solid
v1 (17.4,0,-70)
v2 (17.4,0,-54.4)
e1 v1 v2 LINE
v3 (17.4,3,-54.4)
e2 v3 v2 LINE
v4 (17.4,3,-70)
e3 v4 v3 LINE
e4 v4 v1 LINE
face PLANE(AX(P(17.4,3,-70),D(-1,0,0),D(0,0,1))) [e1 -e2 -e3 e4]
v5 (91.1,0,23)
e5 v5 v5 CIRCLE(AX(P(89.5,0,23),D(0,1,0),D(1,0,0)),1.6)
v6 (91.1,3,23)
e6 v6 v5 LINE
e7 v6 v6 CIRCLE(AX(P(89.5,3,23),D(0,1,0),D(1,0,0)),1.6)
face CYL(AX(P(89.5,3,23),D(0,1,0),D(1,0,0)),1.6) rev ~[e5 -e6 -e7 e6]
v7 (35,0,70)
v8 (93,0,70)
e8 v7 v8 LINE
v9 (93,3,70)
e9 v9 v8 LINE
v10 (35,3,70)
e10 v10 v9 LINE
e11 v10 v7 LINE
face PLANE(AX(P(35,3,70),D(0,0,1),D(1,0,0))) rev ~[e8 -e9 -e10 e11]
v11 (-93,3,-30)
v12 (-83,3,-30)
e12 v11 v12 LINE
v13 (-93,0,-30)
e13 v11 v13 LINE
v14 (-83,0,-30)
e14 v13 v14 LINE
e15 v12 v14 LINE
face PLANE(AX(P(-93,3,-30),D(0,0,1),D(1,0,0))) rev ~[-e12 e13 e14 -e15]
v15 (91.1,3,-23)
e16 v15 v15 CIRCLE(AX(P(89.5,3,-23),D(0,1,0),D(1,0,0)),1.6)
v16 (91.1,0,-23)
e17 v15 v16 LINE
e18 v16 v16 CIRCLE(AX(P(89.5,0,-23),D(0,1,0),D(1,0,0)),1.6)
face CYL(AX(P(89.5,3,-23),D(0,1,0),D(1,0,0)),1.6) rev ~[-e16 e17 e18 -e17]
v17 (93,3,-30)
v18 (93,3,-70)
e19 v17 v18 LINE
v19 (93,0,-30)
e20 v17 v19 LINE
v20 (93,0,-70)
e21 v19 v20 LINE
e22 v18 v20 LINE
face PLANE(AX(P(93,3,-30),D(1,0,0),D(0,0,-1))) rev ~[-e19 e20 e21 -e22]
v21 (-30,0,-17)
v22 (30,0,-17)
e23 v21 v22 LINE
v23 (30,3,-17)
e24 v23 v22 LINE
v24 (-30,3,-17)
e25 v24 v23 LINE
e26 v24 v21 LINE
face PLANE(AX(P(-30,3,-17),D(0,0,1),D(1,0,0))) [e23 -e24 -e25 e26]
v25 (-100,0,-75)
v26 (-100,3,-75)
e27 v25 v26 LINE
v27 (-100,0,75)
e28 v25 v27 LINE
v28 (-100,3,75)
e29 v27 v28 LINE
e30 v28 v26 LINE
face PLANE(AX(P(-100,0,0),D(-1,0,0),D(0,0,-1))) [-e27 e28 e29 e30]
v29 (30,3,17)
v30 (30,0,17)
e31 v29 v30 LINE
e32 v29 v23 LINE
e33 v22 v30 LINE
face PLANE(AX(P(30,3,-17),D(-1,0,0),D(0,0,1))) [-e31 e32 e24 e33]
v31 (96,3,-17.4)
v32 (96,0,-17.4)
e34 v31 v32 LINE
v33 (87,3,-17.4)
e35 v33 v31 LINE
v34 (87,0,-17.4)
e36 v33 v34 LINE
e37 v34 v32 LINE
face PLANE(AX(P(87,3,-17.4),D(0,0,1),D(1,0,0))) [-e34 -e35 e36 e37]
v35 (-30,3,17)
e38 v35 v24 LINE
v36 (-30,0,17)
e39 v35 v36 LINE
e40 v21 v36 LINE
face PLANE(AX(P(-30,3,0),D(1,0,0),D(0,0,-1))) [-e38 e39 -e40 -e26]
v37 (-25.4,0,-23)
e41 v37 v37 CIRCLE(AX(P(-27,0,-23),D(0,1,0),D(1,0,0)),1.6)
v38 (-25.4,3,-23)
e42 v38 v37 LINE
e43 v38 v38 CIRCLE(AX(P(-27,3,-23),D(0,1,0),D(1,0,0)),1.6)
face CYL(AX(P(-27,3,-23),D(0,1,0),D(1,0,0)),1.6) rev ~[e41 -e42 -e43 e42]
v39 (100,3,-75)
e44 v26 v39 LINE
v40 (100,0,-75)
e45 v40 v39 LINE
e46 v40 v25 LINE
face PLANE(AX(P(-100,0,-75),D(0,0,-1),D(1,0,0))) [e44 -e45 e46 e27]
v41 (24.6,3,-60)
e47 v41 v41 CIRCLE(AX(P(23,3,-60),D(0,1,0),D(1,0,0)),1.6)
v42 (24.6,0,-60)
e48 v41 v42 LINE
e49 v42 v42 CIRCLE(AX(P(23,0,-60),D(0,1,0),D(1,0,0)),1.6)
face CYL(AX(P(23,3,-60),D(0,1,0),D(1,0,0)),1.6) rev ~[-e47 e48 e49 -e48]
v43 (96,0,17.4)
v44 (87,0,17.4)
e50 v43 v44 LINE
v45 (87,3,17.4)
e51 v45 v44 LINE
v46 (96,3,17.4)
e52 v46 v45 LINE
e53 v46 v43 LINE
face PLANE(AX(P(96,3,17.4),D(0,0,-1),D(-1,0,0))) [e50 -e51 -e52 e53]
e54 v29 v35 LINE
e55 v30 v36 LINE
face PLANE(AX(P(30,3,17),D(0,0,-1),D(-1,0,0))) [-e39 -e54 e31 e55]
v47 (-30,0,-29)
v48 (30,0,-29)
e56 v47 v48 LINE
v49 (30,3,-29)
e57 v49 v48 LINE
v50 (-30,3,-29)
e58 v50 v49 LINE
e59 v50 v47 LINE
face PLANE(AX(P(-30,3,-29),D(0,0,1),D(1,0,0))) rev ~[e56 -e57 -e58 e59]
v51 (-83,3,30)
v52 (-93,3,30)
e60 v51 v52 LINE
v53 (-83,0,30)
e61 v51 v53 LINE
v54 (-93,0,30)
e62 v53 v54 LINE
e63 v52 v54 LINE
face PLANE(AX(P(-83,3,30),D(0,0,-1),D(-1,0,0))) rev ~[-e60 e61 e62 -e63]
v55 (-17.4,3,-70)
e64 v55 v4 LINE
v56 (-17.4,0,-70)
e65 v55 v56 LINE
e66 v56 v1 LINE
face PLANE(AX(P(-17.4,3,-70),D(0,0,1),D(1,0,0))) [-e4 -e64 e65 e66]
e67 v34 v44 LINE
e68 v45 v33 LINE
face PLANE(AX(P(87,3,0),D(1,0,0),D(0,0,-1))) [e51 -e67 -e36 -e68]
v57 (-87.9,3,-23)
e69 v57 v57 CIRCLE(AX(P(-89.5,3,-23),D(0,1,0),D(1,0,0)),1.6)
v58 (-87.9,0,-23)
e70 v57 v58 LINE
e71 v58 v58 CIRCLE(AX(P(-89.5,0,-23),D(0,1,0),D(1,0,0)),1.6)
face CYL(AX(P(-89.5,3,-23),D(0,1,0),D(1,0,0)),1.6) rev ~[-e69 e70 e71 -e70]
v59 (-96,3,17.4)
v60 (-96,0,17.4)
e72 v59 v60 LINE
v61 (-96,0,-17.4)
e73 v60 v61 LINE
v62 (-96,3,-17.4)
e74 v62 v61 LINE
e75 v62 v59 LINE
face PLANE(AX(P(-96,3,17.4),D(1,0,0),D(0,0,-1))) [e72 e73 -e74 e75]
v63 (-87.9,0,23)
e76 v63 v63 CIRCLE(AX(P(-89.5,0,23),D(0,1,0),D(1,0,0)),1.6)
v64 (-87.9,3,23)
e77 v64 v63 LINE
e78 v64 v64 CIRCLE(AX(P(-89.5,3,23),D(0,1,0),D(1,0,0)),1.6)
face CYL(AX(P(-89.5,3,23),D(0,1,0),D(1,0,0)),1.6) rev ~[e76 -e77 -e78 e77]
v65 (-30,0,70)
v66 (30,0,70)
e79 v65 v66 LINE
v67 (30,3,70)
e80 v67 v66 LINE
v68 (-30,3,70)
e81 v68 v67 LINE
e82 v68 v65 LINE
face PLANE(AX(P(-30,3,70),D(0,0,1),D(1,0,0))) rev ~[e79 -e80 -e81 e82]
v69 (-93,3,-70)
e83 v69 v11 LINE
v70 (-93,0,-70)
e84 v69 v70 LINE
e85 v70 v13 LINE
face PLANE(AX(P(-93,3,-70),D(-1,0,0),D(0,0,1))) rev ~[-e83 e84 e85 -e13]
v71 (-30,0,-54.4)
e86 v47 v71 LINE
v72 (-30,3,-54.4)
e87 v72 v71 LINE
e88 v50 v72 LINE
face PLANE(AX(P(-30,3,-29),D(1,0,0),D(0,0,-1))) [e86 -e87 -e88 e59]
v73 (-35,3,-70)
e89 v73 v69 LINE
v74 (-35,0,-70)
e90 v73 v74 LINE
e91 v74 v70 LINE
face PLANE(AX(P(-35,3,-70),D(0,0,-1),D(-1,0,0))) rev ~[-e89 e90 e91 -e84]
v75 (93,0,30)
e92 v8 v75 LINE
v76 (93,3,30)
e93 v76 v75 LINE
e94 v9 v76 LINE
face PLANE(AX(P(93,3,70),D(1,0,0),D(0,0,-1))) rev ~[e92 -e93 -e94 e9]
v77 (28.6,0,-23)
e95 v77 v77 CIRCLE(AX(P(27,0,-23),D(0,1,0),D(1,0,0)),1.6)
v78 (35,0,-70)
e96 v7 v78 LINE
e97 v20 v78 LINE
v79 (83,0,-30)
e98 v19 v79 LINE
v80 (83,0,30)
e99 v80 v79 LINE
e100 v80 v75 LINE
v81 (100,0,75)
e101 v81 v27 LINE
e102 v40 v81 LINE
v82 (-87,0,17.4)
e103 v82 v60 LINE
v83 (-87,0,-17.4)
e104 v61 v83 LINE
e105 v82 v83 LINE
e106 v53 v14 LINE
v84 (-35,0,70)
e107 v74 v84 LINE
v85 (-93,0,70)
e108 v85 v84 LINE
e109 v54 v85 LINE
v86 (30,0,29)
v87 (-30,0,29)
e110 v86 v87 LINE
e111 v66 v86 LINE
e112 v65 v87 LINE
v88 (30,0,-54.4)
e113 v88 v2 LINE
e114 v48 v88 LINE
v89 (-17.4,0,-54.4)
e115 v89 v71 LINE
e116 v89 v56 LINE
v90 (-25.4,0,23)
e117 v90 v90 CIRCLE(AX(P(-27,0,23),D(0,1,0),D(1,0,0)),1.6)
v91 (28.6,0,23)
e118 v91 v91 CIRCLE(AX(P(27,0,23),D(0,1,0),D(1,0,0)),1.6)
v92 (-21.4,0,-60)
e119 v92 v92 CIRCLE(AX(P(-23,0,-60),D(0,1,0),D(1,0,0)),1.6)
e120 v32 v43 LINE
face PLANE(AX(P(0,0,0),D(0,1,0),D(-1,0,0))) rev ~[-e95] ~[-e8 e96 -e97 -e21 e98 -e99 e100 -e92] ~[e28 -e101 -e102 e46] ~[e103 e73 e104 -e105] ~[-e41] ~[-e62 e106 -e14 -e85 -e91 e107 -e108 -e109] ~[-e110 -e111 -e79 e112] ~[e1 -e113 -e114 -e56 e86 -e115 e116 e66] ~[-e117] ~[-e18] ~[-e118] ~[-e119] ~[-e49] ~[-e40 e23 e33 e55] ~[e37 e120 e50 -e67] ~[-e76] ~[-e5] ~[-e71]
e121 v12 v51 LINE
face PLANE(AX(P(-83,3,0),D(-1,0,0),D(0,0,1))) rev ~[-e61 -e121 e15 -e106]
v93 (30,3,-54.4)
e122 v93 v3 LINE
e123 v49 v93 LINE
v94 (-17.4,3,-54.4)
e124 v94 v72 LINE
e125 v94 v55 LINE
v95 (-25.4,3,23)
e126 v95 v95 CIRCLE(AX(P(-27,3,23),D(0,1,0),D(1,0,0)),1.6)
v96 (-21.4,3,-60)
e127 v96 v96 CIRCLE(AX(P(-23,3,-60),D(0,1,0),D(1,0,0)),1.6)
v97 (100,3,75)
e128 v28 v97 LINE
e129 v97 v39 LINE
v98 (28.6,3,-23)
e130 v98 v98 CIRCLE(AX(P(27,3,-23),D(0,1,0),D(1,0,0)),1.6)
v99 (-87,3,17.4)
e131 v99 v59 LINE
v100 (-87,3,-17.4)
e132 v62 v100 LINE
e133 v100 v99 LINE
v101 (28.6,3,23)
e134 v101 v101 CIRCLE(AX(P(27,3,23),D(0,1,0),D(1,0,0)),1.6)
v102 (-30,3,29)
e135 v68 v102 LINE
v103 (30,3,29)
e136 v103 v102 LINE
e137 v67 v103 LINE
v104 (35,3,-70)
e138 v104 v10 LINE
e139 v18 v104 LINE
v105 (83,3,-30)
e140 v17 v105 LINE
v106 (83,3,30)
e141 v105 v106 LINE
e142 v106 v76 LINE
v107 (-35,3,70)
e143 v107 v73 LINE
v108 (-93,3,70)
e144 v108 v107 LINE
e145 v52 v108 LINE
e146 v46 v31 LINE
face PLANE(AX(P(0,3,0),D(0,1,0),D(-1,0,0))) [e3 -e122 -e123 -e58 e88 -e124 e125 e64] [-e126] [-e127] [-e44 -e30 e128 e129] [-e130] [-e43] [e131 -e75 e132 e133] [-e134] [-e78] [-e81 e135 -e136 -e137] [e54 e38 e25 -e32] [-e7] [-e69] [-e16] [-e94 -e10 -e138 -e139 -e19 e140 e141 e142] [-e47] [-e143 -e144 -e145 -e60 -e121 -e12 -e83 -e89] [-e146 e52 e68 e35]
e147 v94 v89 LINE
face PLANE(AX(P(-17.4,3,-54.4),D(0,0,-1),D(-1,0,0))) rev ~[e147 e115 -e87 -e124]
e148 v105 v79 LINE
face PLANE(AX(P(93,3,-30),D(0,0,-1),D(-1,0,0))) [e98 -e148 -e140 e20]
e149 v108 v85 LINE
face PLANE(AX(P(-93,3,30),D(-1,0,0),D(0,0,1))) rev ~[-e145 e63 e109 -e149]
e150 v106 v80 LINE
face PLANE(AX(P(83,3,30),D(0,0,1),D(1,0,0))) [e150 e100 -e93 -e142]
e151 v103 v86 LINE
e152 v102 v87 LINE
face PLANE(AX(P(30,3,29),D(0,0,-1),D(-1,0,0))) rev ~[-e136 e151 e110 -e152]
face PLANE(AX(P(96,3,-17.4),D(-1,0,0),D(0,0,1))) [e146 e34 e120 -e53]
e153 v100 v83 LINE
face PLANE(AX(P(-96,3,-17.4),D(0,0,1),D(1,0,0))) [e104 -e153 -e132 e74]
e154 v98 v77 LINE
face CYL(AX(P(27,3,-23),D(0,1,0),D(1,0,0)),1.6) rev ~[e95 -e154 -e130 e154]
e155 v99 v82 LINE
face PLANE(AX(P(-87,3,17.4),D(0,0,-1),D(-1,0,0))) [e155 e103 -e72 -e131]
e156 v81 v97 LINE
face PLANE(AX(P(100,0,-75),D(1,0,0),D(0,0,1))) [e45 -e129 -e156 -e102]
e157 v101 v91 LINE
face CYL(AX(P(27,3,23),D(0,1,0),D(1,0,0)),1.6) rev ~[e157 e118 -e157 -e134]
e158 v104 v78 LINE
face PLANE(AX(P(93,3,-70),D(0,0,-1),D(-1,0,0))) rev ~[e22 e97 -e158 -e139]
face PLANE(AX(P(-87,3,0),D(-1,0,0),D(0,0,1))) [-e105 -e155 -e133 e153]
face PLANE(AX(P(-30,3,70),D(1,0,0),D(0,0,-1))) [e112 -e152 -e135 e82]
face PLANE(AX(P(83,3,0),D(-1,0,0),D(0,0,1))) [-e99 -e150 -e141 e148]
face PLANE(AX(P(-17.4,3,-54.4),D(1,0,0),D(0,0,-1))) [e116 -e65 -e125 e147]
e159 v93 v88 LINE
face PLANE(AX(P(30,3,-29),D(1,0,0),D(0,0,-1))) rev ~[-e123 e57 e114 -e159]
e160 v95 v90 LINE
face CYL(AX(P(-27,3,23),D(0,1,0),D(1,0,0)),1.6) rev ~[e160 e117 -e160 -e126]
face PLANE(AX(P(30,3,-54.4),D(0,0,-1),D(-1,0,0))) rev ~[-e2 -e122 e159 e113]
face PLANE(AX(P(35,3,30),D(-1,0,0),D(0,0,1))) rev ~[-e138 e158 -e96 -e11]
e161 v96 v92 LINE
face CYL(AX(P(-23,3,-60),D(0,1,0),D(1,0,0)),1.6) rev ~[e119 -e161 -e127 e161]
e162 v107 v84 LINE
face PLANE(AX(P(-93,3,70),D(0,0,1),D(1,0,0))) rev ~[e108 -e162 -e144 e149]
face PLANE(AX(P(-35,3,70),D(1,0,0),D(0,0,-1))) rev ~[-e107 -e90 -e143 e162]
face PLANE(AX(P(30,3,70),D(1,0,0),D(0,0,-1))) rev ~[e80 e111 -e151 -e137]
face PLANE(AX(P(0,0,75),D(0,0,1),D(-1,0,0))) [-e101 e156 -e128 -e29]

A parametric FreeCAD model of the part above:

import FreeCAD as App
import Part
import Sketcher

V = App.Vector
Q = App.Units.Quantity


def add_polygon(sketch, points):
    """Adds a closed chain of lines whose ends are joined by coincident constraints."""
    first, n = sketch.GeometryCount, len(points)
    for a, b in zip(points, points[1:] + points[:1]):
        sketch.addGeometry(Part.LineSegment(App.Vector(*a, 0), App.Vector(*b, 0)), False)
    for i in range(n):
        sketch.addConstraint(Sketcher.Constraint("Coincident", first + i, 2, first + (i + 1) % n, 1))

doc = App.newDocument("Part")
body = doc.addObject("PartDesign::Body", "Body")

# Sketch on XZ plane
sketch1 = body.newObject("Sketcher::SketchObject", "Sketch")
sketch1.AttachmentSupport = (doc.getObject("XZ_Plane"), [""])
sketch1.MapMode = "FlatFace"
add_polygon(sketch1, [(-100, -75), (-100, 75), (100, 75), (100, -75)])  # lines 0-3
sketch1.addConstraint([
    Sketcher.Constraint("Vertical", 0),
    Sketcher.Constraint("Horizontal", 1),
    Sketcher.Constraint("Vertical", 2),
    Sketcher.Constraint("Horizontal", 3),
    Sketcher.Constraint("Symmetric", 0, 2, 2, 2, -1, 1),
    Sketcher.Constraint("DistanceX", 1, 1, 1, 2, Q("200 mm")),
    Sketcher.Constraint("DistanceY", 0, 1, 0, 2, Q("150 mm")),
])
pad1 = body.newObject("PartDesign::Pad", "Pad")
pad1.Profile = sketch1
pad1.Length = 3
pad1.Reversed = True

# Sketch on XZ plane
sketch2 = body.newObject("Sketcher::SketchObject", "Sketch001")
sketch2.AttachmentSupport = (doc.getObject("XZ_Plane"), [""])
sketch2.MapMode = "FlatFace"
sketch2.AttachmentOffset = App.Placement(V(0, 0, -3), App.Rotation())
sketch2.addGeometry([
    Part.Circle(V(27, 23, 0), V(0, 0, 1), 1.6),
    Part.Circle(V(27, -23, 0), V(0, 0, 1), 1.6),
], False)
sketch2.addConstraint([
    Sketcher.Constraint("Equal", 0, 1),
    Sketcher.Constraint("Symmetric", 0, 3, 1, 3, -1),
    Sketcher.Constraint("Diameter", 0, Q("3.2 mm")),
    Sketcher.Constraint("DistanceX", -1, 1, 0, 3, Q("27 mm")),
    Sketcher.Constraint("DistanceY", -1, 1, 0, 3, Q("23 mm")),
])
pocket1 = body.newObject("PartDesign::Pocket", "Pocket")
pocket1.Profile = sketch2
pocket1.Length = 3
pocket1.Reversed = True

# Sketch on XZ plane
sketch3 = body.newObject("Sketcher::SketchObject", "Sketch002")
sketch3.AttachmentSupport = (doc.getObject("XZ_Plane"), [""])
sketch3.MapMode = "FlatFace"
sketch3.AttachmentOffset = App.Placement(V(0, 0, -3), App.Rotation())
sketch3.addGeometry([
    Part.Circle(V(-27, 23, 0), V(0, 0, 1), 1.6),
    Part.Circle(V(-27, -23, 0), V(0, 0, 1), 1.6),
], False)
sketch3.addConstraint([
    Sketcher.Constraint("Equal", 0, 1),
    Sketcher.Constraint("Symmetric", 0, 3, 1, 3, -1),
    Sketcher.Constraint("Diameter", 0, Q("3.2 mm")),
    Sketcher.Constraint("DistanceX", 0, 3, -1, 1, Q("27 mm")),
    Sketcher.Constraint("DistanceY", -1, 1, 0, 3, Q("23 mm")),
])
pocket2 = body.newObject("PartDesign::Pocket", "Pocket001")
pocket2.Profile = sketch3
pocket2.Length = 3
pocket2.Reversed = True

# Sketch on XZ plane
sketch4 = body.newObject("Sketcher::SketchObject", "Sketch003")
sketch4.AttachmentSupport = (doc.getObject("XZ_Plane"), [""])
sketch4.MapMode = "FlatFace"
sketch4.AttachmentOffset = App.Placement(V(0, 0, -3), App.Rotation())
sketch4.addGeometry([
    Part.Circle(V(27, -23, 0), V(0, 0, 1), 1.6),
    Part.Circle(V(-27, -23, 0), V(0, 0, 1), 1.6),
], False)
sketch4.addConstraint([
    Sketcher.Constraint("Equal", 0, 1),
    Sketcher.Constraint("Symmetric", 0, 3, 1, 3, -2),
    Sketcher.Constraint("Diameter", 0, Q("3.2 mm")),
    Sketcher.Constraint("DistanceX", -1, 1, 0, 3, Q("27 mm")),
    Sketcher.Constraint("DistanceY", 0, 3, -1, 1, Q("23 mm")),
])
pocket3 = body.newObject("PartDesign::Pocket", "Pocket002")
pocket3.Profile = sketch4
pocket3.Length = 3
pocket3.Reversed = True

# Sketch on XZ plane
sketch5 = body.newObject("Sketcher::SketchObject", "Sketch004")
sketch5.AttachmentSupport = (doc.getObject("XZ_Plane"), [""])
sketch5.MapMode = "FlatFace"
sketch5.AttachmentOffset = App.Placement(V(0, 0, -3), App.Rotation())
sketch5.addGeometry([
    Part.Circle(V(89.5, 23, 0), V(0, 0, 1), 1.6),
    Part.Circle(V(89.5, -23, 0), V(0, 0, 1), 1.6),
    Part.Circle(V(-89.5, 23, 0), V(0, 0, 1), 1.6),
    Part.Circle(V(-89.5, -23, 0), V(0, 0, 1), 1.6),
], False)
sketch5.addConstraint([
    Sketcher.Constraint("Equal", 0, 1),
    Sketcher.Constraint("Equal", 1, 2),
    Sketcher.Constraint("Equal", 2, 3),
    Sketcher.Constraint("Symmetric", 1, 3, 2, 3, -1, 1),
    Sketcher.Constraint("Symmetric", 0, 3, 3, 3, -1, 1),
    Sketcher.Constraint("Symmetric", 0, 3, 2, 3, -2),
    Sketcher.Constraint("Diameter", 0, Q("3.2 mm")),
    Sketcher.Constraint("DistanceY", -1, 1, 0, 3, Q("23 mm")),
    Sketcher.Constraint("DistanceX", 2, 3, 0, 3, Q("179 mm")),
])
pocket4 = body.newObject("PartDesign::Pocket", "Pocket003")
pocket4.Profile = sketch5
pocket4.Length = 3
pocket4.Reversed = True

# Sketch on XZ plane
sketch6 = body.newObject("Sketcher::SketchObject", "Sketch005")
sketch6.AttachmentSupport = (doc.getObject("XZ_Plane"), [""])
sketch6.MapMode = "FlatFace"
sketch6.AttachmentOffset = App.Placement(V(0, 0, -3), App.Rotation())
sketch6.addGeometry([
    Part.Circle(V(-23, -60, 0), V(0, 0, 1), 1.6),
    Part.Circle(V(23, -60, 0), V(0, 0, 1), 1.6),
], False)
sketch6.addConstraint([
    Sketcher.Constraint("Equal", 0, 1),
    Sketcher.Constraint("Symmetric", 0, 3, 1, 3, -2),
    Sketcher.Constraint("Diameter", 0, Q("3.2 mm")),
    Sketcher.Constraint("DistanceX", 0, 3, -1, 1, Q("23 mm")),
    Sketcher.Constraint("DistanceY", 0, 3, -1, 1, Q("60 mm")),
])
pocket5 = body.newObject("PartDesign::Pocket", "Pocket004")
pocket5.Profile = sketch6
pocket5.Length = 3
pocket5.Reversed = True

# Sketch on XZ plane
sketch7 = body.newObject("Sketcher::SketchObject", "Sketch006")
sketch7.AttachmentSupport = (doc.getObject("XZ_Plane"), [""])
sketch7.MapMode = "FlatFace"
sketch7.AttachmentOffset = App.Placement(V(0, 0, -3), App.Rotation())
add_polygon(sketch7, [(-93, 30), (-93, 70), (-35, 70), (-35, -70), (-93, -70), (-93, -30), (-83, -30), (-83, 30)])  # lines 0-7
add_polygon(sketch7, [(-30, -17), (-30, 17), (30, 17), (30, -17)])  # lines 8-11
add_polygon(sketch7, [(-87, 17), (-87, -17), (-96, -17), (-96, 17)])  # lines 12-15
add_polygon(sketch7, [(83, 30), (83, -30), (93, -30), (93, -70), (35, -70), (35, 70), (93, 70), (93, 30)])  # lines 16-23
add_polygon(sketch7, [(87, -17), (87, 17), (96, 17), (96, -17)])  # lines 24-27
add_polygon(sketch7, [(-30, 29), (-30, 70), (30, 70), (30, 29)])  # lines 28-31
add_polygon(sketch7, [(-30, -54), (-30, -29), (30, -29), (30, -54), (17, -54), (17, -70), (-17, -70), (-17, -54)])  # lines 32-39
sketch7.addConstraint([
    Sketcher.Constraint("Vertical", 0),
    Sketcher.Constraint("Horizontal", 1),
    Sketcher.Constraint("Vertical", 2),
    Sketcher.Constraint("Horizontal", 3),
    Sketcher.Constraint("Vertical", 4),
    Sketcher.Constraint("Horizontal", 5),
    Sketcher.Constraint("Vertical", 6),
    Sketcher.Constraint("Horizontal", 7),
    Sketcher.Constraint("Vertical", 8),
    Sketcher.Constraint("Horizontal", 9),
    Sketcher.Constraint("Vertical", 10),
    Sketcher.Constraint("Horizontal", 11),
    Sketcher.Constraint("Vertical", 12),
    Sketcher.Constraint("Horizontal", 13),
    Sketcher.Constraint("Vertical", 14),
    Sketcher.Constraint("Horizontal", 15),
    Sketcher.Constraint("Vertical", 16),
    Sketcher.Constraint("Horizontal", 17),
    Sketcher.Constraint("Vertical", 18),
    Sketcher.Constraint("Horizontal", 19),
    Sketcher.Constraint("Vertical", 20),
    Sketcher.Constraint("Horizontal", 21),
    Sketcher.Constraint("Vertical", 22),
    Sketcher.Constraint("Horizontal", 23),
    Sketcher.Constraint("Vertical", 24),
    Sketcher.Constraint("Horizontal", 25),
    Sketcher.Constraint("Vertical", 26),
    Sketcher.Constraint("Horizontal", 27),
    Sketcher.Constraint("Vertical", 28),
    Sketcher.Constraint("Horizontal", 29),
    Sketcher.Constraint("Vertical", 30),
    Sketcher.Constraint("Horizontal", 31),
    Sketcher.Constraint("Vertical", 32),
    Sketcher.Constraint("Horizontal", 33),
    Sketcher.Constraint("Vertical", 34),
    Sketcher.Constraint("Horizontal", 35),
    Sketcher.Constraint("Vertical", 36),
    Sketcher.Constraint("Horizontal", 37),
    Sketcher.Constraint("Vertical", 38),
    Sketcher.Constraint("Horizontal", 39),
    Sketcher.Constraint("Symmetric", 8, 2, 10, 2, -1, 1),
    Sketcher.Constraint("Symmetric", 6, 2, 16, 2, -1, 1),
    Sketcher.Constraint("Symmetric", 0, 2, 18, 2, -1, 1),
    Sketcher.Constraint("Symmetric", 2, 2, 20, 2, -1, 1),
    Sketcher.Constraint("Symmetric", 4, 2, 22, 2, -1, 1),
    Sketcher.Constraint("Symmetric", 12, 2, 24, 2, -1, 1),
    Sketcher.Constraint("Symmetric", 14, 2, 26, 2, -1, 1),
    Sketcher.Constraint("Symmetric", 30, 2, 32, 2, -1, 1),
    Sketcher.Constraint("Symmetric", 4, 2, 17, 2, -2),
    Sketcher.Constraint("Symmetric", 35, 2, 38, 2, -2),
    Sketcher.Constraint("Horizontal", 3, 2, 18, 2),
    Sketcher.Constraint("Horizontal", 15, 2, 24, 2),
    Sketcher.Constraint("Horizontal", 21, 2, 28, 2),
    Sketcher.Constraint("Horizontal", 19, 2, 36, 2),
    Sketcher.Constraint("Vertical", 11, 2, 28, 2),
    Sketcher.Constraint("Vertical", 10, 2, 29, 2),
    Sketcher.Constraint("Vertical", 30, 2, 33, 2),
    Sketcher.Constraint("Equal", 33, 6),
    Sketcher.Constraint("Equal", 37, 12),
    Sketcher.Constraint("DistanceX", 5, 1, 5, 2, Q("10 mm")),
    Sketcher.Constraint("DistanceX", 9, 1, 9, 2, Q("60 mm")),
    Sketcher.Constraint("DistanceY", 0, 1, 0, 2, Q("40 mm")),
    Sketcher.Constraint("DistanceY", -1, 1, 8, 2, Q("17 mm")),
    Sketcher.Constraint("DistanceX", 1, 2, 8, 2, Q("5 mm")),
    Sketcher.Constraint("DistanceX", 12, 2, 5, 2, Q("4 mm")),
    Sketcher.Constraint("DistanceY", 9, 2, 30, 2, Q("12 mm")),
    Sketcher.Constraint("DistanceX", 1, 1, 1, 2, Q("58 mm")),
    Sketcher.Constraint("DistanceX", 13, 2, 13, 1, Q("9 mm")),
    Sketcher.Constraint("DistanceX", 35, 2, 35, 1, Q("12.6 mm")),
    Sketcher.Constraint("DistanceY", 32, 1, 32, 2, Q("25.4 mm")),
])
pocket6 = body.newObject("PartDesign::Pocket", "Pocket005")
pocket6.Profile = sketch7
pocket6.Length = 3
pocket6.Reversed = True

doc.recompute()
